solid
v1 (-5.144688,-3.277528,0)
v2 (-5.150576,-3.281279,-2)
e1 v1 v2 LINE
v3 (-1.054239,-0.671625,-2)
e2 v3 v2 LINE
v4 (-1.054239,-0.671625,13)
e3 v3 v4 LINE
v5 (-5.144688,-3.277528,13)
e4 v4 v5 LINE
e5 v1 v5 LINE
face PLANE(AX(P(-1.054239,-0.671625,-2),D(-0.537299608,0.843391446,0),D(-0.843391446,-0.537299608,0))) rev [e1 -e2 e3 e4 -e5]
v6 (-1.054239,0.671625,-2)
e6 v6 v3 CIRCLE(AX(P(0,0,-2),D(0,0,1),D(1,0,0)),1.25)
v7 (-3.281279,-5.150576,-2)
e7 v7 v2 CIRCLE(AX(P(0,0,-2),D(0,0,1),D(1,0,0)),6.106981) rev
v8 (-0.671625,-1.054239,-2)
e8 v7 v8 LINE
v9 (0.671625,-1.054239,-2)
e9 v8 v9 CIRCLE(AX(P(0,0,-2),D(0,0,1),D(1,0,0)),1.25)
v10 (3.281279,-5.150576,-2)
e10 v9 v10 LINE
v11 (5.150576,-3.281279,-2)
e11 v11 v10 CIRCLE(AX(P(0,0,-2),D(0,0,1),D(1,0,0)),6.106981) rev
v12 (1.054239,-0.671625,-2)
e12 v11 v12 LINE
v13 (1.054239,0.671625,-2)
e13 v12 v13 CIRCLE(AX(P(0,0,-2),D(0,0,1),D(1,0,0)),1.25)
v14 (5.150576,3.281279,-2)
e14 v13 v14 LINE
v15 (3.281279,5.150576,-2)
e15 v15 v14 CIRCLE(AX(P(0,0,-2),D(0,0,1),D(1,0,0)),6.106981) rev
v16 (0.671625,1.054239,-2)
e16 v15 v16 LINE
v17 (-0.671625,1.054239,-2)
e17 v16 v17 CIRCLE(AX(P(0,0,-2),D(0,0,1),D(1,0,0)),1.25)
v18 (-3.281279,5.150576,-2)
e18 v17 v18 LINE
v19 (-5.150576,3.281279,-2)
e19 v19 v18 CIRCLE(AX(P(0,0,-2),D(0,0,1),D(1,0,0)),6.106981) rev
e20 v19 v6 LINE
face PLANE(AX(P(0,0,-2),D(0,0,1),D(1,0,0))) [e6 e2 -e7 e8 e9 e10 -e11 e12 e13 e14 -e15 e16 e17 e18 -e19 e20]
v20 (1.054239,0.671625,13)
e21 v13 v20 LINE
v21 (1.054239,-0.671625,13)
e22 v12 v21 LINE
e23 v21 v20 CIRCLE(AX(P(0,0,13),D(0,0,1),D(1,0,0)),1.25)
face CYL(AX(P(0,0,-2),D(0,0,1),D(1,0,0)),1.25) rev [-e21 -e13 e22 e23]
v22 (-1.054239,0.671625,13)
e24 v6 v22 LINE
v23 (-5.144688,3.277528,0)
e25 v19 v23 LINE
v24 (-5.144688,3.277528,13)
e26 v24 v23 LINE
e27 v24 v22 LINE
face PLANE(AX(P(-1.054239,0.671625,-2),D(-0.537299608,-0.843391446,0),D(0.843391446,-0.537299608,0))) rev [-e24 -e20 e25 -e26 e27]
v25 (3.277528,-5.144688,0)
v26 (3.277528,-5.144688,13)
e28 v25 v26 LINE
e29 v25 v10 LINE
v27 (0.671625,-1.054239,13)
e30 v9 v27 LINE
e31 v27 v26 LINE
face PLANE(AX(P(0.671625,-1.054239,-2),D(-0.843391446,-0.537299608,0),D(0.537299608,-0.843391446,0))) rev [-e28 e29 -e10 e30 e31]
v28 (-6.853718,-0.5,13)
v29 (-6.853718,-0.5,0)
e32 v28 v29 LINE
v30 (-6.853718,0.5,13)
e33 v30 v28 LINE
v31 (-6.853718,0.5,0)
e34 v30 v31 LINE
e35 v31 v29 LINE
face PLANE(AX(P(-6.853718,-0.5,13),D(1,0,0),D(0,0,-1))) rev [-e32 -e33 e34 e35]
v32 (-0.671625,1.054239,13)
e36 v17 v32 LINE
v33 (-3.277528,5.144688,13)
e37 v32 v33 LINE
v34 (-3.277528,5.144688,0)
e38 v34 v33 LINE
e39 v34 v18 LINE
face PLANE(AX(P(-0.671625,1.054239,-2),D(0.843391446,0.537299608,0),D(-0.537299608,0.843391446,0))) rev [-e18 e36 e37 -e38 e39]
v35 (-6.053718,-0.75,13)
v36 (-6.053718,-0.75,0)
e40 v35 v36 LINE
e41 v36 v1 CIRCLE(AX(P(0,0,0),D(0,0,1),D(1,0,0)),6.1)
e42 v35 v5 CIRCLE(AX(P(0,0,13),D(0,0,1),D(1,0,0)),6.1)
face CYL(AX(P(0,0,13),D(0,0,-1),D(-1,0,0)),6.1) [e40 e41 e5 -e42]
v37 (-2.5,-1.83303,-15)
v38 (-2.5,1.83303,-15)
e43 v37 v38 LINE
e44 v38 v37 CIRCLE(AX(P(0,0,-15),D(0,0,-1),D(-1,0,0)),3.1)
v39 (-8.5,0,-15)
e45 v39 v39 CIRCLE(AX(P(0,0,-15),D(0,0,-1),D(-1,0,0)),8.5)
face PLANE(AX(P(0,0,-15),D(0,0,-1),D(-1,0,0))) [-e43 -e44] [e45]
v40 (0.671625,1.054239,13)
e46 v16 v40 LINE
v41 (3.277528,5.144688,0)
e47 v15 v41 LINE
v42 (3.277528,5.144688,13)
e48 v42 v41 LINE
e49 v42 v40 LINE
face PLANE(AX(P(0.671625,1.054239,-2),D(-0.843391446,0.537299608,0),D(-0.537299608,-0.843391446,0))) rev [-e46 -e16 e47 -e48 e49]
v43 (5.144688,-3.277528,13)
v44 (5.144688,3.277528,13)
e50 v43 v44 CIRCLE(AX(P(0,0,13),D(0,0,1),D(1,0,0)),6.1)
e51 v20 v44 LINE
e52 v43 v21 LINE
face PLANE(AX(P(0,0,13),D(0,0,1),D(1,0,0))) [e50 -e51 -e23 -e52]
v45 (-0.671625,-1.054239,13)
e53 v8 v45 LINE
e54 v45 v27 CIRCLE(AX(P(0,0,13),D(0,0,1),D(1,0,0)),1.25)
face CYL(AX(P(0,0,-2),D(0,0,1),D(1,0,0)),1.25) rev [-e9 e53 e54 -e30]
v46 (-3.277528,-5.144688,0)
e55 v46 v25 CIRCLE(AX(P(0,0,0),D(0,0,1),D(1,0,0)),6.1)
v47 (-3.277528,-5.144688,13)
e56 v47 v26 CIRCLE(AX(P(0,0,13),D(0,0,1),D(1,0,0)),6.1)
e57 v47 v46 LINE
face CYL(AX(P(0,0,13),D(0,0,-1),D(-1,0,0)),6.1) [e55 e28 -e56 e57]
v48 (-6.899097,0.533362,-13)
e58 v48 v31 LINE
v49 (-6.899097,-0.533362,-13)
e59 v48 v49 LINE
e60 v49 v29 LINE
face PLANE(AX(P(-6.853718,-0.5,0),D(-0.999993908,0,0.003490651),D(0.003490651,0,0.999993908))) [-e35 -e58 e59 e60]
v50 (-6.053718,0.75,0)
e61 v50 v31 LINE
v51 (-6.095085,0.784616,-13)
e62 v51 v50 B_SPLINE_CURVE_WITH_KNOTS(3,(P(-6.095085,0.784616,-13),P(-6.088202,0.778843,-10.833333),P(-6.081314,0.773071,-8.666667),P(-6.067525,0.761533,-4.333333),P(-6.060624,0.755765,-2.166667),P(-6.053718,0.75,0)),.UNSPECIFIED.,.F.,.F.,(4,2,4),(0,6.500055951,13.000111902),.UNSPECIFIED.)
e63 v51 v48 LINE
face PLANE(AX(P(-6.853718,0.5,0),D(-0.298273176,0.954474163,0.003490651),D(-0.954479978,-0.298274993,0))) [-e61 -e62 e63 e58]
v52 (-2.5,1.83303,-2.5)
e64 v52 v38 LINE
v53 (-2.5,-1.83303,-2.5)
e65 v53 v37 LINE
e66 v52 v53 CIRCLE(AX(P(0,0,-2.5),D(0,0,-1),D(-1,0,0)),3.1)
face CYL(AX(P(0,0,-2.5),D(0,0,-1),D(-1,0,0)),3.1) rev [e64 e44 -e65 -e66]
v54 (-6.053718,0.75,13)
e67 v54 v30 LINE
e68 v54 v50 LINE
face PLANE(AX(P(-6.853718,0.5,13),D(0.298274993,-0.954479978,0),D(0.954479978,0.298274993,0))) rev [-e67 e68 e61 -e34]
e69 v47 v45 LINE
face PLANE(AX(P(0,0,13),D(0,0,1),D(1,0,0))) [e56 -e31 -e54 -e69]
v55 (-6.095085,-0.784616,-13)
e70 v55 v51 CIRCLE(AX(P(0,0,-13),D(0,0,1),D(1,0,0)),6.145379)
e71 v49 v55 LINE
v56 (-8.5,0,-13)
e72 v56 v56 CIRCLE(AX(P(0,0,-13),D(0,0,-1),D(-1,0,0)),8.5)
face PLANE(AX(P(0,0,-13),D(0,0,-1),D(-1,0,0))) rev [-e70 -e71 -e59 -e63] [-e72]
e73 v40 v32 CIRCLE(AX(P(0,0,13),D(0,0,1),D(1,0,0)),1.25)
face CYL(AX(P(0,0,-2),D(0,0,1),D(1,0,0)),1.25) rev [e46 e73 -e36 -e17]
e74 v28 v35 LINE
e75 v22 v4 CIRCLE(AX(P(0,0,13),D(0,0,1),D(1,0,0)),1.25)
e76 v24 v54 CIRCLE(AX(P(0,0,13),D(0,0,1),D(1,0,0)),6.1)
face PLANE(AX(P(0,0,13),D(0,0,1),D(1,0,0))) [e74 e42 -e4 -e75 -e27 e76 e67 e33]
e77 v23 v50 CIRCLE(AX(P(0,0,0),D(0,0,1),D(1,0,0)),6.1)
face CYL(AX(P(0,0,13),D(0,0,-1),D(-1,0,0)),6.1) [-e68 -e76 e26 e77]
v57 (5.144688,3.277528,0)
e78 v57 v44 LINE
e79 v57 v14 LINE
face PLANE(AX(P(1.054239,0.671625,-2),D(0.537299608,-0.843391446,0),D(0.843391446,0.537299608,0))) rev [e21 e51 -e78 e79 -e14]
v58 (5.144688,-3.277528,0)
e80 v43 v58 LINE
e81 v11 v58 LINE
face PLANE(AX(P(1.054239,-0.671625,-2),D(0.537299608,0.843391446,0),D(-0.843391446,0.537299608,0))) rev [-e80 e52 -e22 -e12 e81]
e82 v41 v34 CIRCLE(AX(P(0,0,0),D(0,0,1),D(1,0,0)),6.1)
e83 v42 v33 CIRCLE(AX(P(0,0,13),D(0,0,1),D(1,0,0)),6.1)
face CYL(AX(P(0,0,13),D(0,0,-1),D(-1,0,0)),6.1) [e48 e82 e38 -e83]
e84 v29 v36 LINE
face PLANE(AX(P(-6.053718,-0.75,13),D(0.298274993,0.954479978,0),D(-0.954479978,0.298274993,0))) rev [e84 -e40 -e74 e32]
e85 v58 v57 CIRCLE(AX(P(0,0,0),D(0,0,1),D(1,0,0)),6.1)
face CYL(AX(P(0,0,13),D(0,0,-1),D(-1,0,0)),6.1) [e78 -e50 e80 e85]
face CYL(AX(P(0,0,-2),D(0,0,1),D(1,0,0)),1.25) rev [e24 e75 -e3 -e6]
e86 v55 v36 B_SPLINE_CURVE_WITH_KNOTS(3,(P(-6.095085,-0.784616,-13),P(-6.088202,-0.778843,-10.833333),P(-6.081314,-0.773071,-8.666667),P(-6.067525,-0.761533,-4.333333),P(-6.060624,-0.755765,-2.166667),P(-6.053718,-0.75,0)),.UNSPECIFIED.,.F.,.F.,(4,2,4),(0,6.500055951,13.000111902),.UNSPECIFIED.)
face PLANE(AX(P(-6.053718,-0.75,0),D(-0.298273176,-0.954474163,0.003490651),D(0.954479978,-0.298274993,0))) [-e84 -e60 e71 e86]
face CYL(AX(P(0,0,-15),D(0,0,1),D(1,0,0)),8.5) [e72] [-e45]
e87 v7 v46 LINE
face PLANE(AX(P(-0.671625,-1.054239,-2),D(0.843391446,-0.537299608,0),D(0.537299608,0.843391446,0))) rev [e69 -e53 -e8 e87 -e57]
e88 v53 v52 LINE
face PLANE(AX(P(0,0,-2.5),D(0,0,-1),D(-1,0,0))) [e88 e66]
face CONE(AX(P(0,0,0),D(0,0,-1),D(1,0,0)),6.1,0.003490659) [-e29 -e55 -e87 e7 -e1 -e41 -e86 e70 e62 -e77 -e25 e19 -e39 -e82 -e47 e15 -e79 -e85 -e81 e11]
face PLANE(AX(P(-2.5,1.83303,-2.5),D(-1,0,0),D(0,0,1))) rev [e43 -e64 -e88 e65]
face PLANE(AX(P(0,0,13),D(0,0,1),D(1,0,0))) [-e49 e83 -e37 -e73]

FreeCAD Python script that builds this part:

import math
import FreeCAD as App
import Part
import Sketcher

V = App.Vector
Q = App.Units.Quantity

doc = App.newDocument("Part")
body = doc.addObject("PartDesign::Body", "Body")

# Sketch on XY plane
sketch1 = body.newObject("Sketcher::SketchObject", "Sketch")
sketch1.AttachmentSupport = (doc.getObject("XY_Plane"), [""])
sketch1.MapMode = "FlatFace"
sketch1.addGeometry([
    Part.ArcOfCircle(Part.Circle(V(0, 0, 0), V(0, 0, 1), 6.1), math.radians(-173), math.radians(173)),
    Part.LineSegment(V(-6.1, 0.8, 0), V(-6.9, 0.5, 0)),
    Part.LineSegment(V(-6.9, 0.5, 0), V(-6.9, -0.5, 0)),
    Part.LineSegment(V(-6.9, -0.5, 0), V(-6.1, -0.8, 0)),
], False)
sketch1.addConstraint([
    Sketcher.Constraint("Coincident", 0, 2, 1, 1),
    Sketcher.Constraint("Coincident", 1, 2, 2, 1),
    Sketcher.Constraint("Coincident", 2, 2, 3, 1),
    Sketcher.Constraint("Coincident", 3, 2, 0, 1),
    Sketcher.Constraint("Vertical", 2),
    Sketcher.Constraint("Coincident", 0, 3, -1, 1),
    Sketcher.Constraint("Vertical", 0, 2, 3, 2),
    Sketcher.Constraint("Equal", 1, 3),
    Sketcher.Constraint("Radius", 0, 6.1),
    Sketcher.Constraint("DistanceY", 2, 2, 2, 1, 1.0),
    Sketcher.Constraint("DistanceX", 1, 2, 0, 2, 0.8),
    Sketcher.Constraint("DistanceY", 3, 2, 0, 2, 1.5),
])
pad1 = body.newObject("PartDesign::Pad", "Pad")
pad1.Profile = sketch1
pad1.Length = 13

# Sketch on XY plane
sketch2 = body.newObject("Sketcher::SketchObject", "Sketch001")
sketch2.AttachmentSupport = (doc.getObject("XY_Plane"), [""])
sketch2.MapMode = "FlatFace"
sketch2.addGeometry([
    Part.ArcOfCircle(Part.Circle(V(0, 0, 0), V(0, 0, 1), 6.1), math.radians(-173), math.radians(173)),
    Part.LineSegment(V(-6.1, 0.8, 0), V(-6.9, 0.5, 0)),
    Part.LineSegment(V(-6.9, 0.5, 0), V(-6.9, -0.5, 0)),
    Part.LineSegment(V(-6.9, -0.5, 0), V(-6.1, -0.8, 0)),
], False)
sketch2.addConstraint([
    Sketcher.Constraint("Coincident", 0, 2, 1, 1),
    Sketcher.Constraint("Coincident", 1, 2, 2, 1),
    Sketcher.Constraint("Coincident", 2, 2, 3, 1),
    Sketcher.Constraint("Coincident", 3, 2, 0, 1),
    Sketcher.Constraint("Vertical", 2),
    Sketcher.Constraint("Coincident", 0, 3, -1, 1),
    Sketcher.Constraint("Vertical", 0, 2, 3, 2),
    Sketcher.Constraint("Equal", 1, 3),
    Sketcher.Constraint("Radius", 0, 6.1),
    Sketcher.Constraint("DistanceY", 2, 2, 2, 1, 1.0),
    Sketcher.Constraint("DistanceX", 1, 2, 0, 2, 0.8),
    Sketcher.Constraint("DistanceY", 3, 2, 0, 2, 1.5),
])
pad2 = body.newObject("PartDesign::Pad", "Pad001")
pad2.Profile = sketch2
pad2.Length = 13
pad2.Reversed = True
pad2.TaperAngle = 0.2

# Sketch on XY plane
sketch3 = body.newObject("Sketcher::SketchObject", "Sketch002")
sketch3.AttachmentSupport = (doc.getObject("XY_Plane"), [""])
sketch3.MapMode = "FlatFace"
sketch3.AttachmentOffset = App.Placement(V(0, 0, -13), App.Rotation())
sketch3.addGeometry(Part.Circle(V(0, 0, 0), V(0, 0, 1), 8), False)
sketch3.addConstraint([
    Sketcher.Constraint("Coincident", 0, 3, -1, 1),
    Sketcher.Constraint("Diameter", 0, 17.0),
])
pad3 = body.newObject("PartDesign::Pad", "Pad002")
pad3.Profile = sketch3
pad3.Length = 2
pad3.Reversed = True

# Sketch on XY plane
sketch4 = body.newObject("Sketcher::SketchObject", "Sketch003")
sketch4.AttachmentSupport = (doc.getObject("XY_Plane"), [""])
sketch4.MapMode = "FlatFace"
sketch4.AttachmentOffset = App.Placement(V(0, 0, -15), App.Rotation())
sketch4.addGeometry([
    Part.LineSegment(V(-2.5, -1.8, 0), V(-2.5, 1.8, 0)),
    Part.ArcOfCircle(Part.Circle(V(0, 0, 0), V(0, 0, 1), 3.1), math.radians(-144), math.radians(144)),
], False)
sketch4.addConstraint([
    Sketcher.Constraint("Coincident", 0, 1, 1, 1),
    Sketcher.Constraint("Coincident", 1, 2, 0, 2),
    Sketcher.Constraint("Vertical", 0),
    Sketcher.Constraint("Coincident", 1, 3, -1, 1),
    Sketcher.Constraint("Radius", 1, 3.1),
    Sketcher.Constraint("DistanceX", 0, 1, -1, 1, 2.5),
])
pocket1 = body.newObject("PartDesign::Pocket", "Pocket")
pocket1.Profile = sketch4
pocket1.Length = 12.5
pocket1.Reversed = True

# Sketch on XY plane
sketch5 = body.newObject("Sketcher::SketchObject", "Sketch004")
sketch5.AttachmentSupport = (doc.getObject("XY_Plane"), [""])
sketch5.MapMode = "FlatFace"
sketch5.AttachmentOffset = App.Placement(V(0, 0, 13), App.Rotation())
sketch5.addGeometry(Part.Circle(V(0, 0, 0), V(0, 0, 1), 1.2), False)
sketch5.addConstraint([
    Sketcher.Constraint("Coincident", 0, 3, -1, 1),
    Sketcher.Constraint("Diameter", 0, 2.5),
])
pocket2 = body.newObject("PartDesign::Pocket", "Pocket001")
pocket2.Profile = sketch5
pocket2.Length = 15

# Sketch on XY plane
sketch6 = body.newObject("Sketcher::SketchObject", "Sketch005")
sketch6.AttachmentSupport = (doc.getObject("XY_Plane"), [""])
sketch6.MapMode = "FlatFace"
sketch6.AttachmentOffset = App.Placement(V(0, 0, 13), App.Rotation())
sketch6.addGeometry([
    Part.LineSegment(V(-5.2, 3.3, 0), V(-1.1, 0.7, 0)),  # 0
    Part.ArcOfCircle(Part.Circle(V(0, 0, 0), V(0, 0, 1), 1.3), math.radians(123), math.radians(147)),  # 1
    Part.LineSegment(V(-0.7, 1.1, 0), V(-3.3, 5.2, 0)),  # 2
    Part.ArcOfCircle(Part.Circle(V(0, 0, 0), V(0, 0, 1), 6.1), math.radians(123), math.radians(147)),  # 3
    Part.LineSegment(V(3.3, 5.2, 0), V(0.7, 1.1, 0)),  # 4
    Part.ArcOfCircle(Part.Circle(V(0, 0, 0), V(0, 0, 1), 1.3), math.radians(33), math.radians(57)),  # 5
    Part.LineSegment(V(1.1, 0.7, 0), V(5.2, 3.3, 0)),  # 6
    Part.ArcOfCircle(Part.Circle(V(0, 0, 0), V(0, 0, 1), 6.1), math.radians(33), math.radians(57)),  # 7
    Part.LineSegment(V(5.2, -3.3, 0), V(1.1, -0.7, 0)),  # 8
    Part.ArcOfCircle(Part.Circle(V(0, 0, 0), V(0, 0, 1), 1.3), math.radians(-57), math.radians(-33)),  # 9
    Part.LineSegment(V(0.7, -1.1, 0), V(3.3, -5.2, 0)),  # 10
    Part.ArcOfCircle(Part.Circle(V(0, 0, 0), V(0, 0, 1), 6.1), math.radians(-57), math.radians(-33)),  # 11
    Part.LineSegment(V(-3.3, -5.2, 0), V(-0.7, -1.1, 0)),  # 12
    Part.ArcOfCircle(Part.Circle(V(0, 0, 0), V(0, 0, 1), 1.3), math.radians(-147), math.radians(-123)),  # 13
    Part.LineSegment(V(-1.1, -0.7, 0), V(-5.2, -3.3, 0)),  # 14
    Part.ArcOfCircle(Part.Circle(V(0, 0, 0), V(0, 0, 1), 6.1), math.radians(-147), math.radians(-123)),  # 15
], False)
sketch6.addConstraint([
    Sketcher.Constraint("Coincident", 0, 2, 1, 2),
    Sketcher.Constraint("Coincident", 1, 1, 2, 1),
    Sketcher.Constraint("Coincident", 2, 2, 3, 1),
    Sketcher.Constraint("Coincident", 3, 2, 0, 1),
    Sketcher.Constraint("Coincident", 4, 2, 5, 2),
    Sketcher.Constraint("Coincident", 5, 1, 6, 1),
    Sketcher.Constraint("Coincident", 6, 2, 7, 1),
    Sketcher.Constraint("Coincident", 7, 2, 4, 1),
    Sketcher.Constraint("Coincident", 8, 2, 9, 2),
    Sketcher.Constraint("Coincident", 9, 1, 10, 1),
    Sketcher.Constraint("Coincident", 10, 2, 11, 1),
    Sketcher.Constraint("Coincident", 11, 2, 8, 1),
    Sketcher.Constraint("Coincident", 12, 2, 13, 2),
    Sketcher.Constraint("Coincident", 13, 1, 14, 1),
    Sketcher.Constraint("Coincident", 14, 2, 15, 1),
    Sketcher.Constraint("Coincident", 15, 2, 12, 1),
    Sketcher.Constraint("Coincident", 1, 3, -1, 1),
    Sketcher.Constraint("Coincident", 3, 3, -1, 1),
    Sketcher.Constraint("Coincident", 5, 3, -1, 1),
    Sketcher.Constraint("Coincident", 7, 3, -1, 1),
    Sketcher.Constraint("Coincident", 9, 3, -1, 1),
    Sketcher.Constraint("Coincident", 11, 3, -1, 1),
    Sketcher.Constraint("Coincident", 13, 3, -1, 1),
    Sketcher.Constraint("Coincident", 15, 3, -1, 1),
    Sketcher.Constraint("Equal", 1, 5),
    Sketcher.Constraint("Equal", 3, 7),
    Sketcher.Constraint("Equal", 5, 9),
    Sketcher.Constraint("Equal", 7, 11),
    Sketcher.Constraint("Equal", 9, 13),
    Sketcher.Constraint("Equal", 11, 15),
    Sketcher.Constraint("Perpendicular", 0, 4),
    Sketcher.Constraint("Perpendicular", 2, 6),
    Sketcher.Constraint("Perpendicular", 4, 8),
    Sketcher.Constraint("Perpendicular", 6, 10),
    Sketcher.Constraint("Perpendicular", 8, 12),
    Sketcher.Constraint("Perpendicular", 10, 14),
    Sketcher.Constraint("Horizontal", 1, 1, 4, 2),
    Sketcher.Constraint("Horizontal", 0, 2, 5, 1),
    Sketcher.Constraint("Horizontal", 3, 2, 6, 2),
    Sketcher.Constraint("Horizontal", 9, 1, 12, 2),
    Sketcher.Constraint("Horizontal", 8, 2, 13, 1),
    Sketcher.Constraint("Vertical", 5, 1, 8, 2),
    Sketcher.Constraint("Vertical", 4, 2, 9, 1),
    Sketcher.Constraint("Radius", 1, 1.25),
    Sketcher.Constraint("Angle", 0, Q("-32.5 deg")),
    Sketcher.Constraint("Radius", 3, 6.145379),
    Sketcher.Constraint("DistanceX", 0, 2, -1, 1, 1.054239),
    Sketcher.Constraint("DistanceY", -1, 1, 1, 1, 1.054239),
])
pocket3 = body.newObject("PartDesign::Pocket", "Pocket002")
pocket3.Profile = sketch6
pocket3.Length = 15

doc.recompute()
